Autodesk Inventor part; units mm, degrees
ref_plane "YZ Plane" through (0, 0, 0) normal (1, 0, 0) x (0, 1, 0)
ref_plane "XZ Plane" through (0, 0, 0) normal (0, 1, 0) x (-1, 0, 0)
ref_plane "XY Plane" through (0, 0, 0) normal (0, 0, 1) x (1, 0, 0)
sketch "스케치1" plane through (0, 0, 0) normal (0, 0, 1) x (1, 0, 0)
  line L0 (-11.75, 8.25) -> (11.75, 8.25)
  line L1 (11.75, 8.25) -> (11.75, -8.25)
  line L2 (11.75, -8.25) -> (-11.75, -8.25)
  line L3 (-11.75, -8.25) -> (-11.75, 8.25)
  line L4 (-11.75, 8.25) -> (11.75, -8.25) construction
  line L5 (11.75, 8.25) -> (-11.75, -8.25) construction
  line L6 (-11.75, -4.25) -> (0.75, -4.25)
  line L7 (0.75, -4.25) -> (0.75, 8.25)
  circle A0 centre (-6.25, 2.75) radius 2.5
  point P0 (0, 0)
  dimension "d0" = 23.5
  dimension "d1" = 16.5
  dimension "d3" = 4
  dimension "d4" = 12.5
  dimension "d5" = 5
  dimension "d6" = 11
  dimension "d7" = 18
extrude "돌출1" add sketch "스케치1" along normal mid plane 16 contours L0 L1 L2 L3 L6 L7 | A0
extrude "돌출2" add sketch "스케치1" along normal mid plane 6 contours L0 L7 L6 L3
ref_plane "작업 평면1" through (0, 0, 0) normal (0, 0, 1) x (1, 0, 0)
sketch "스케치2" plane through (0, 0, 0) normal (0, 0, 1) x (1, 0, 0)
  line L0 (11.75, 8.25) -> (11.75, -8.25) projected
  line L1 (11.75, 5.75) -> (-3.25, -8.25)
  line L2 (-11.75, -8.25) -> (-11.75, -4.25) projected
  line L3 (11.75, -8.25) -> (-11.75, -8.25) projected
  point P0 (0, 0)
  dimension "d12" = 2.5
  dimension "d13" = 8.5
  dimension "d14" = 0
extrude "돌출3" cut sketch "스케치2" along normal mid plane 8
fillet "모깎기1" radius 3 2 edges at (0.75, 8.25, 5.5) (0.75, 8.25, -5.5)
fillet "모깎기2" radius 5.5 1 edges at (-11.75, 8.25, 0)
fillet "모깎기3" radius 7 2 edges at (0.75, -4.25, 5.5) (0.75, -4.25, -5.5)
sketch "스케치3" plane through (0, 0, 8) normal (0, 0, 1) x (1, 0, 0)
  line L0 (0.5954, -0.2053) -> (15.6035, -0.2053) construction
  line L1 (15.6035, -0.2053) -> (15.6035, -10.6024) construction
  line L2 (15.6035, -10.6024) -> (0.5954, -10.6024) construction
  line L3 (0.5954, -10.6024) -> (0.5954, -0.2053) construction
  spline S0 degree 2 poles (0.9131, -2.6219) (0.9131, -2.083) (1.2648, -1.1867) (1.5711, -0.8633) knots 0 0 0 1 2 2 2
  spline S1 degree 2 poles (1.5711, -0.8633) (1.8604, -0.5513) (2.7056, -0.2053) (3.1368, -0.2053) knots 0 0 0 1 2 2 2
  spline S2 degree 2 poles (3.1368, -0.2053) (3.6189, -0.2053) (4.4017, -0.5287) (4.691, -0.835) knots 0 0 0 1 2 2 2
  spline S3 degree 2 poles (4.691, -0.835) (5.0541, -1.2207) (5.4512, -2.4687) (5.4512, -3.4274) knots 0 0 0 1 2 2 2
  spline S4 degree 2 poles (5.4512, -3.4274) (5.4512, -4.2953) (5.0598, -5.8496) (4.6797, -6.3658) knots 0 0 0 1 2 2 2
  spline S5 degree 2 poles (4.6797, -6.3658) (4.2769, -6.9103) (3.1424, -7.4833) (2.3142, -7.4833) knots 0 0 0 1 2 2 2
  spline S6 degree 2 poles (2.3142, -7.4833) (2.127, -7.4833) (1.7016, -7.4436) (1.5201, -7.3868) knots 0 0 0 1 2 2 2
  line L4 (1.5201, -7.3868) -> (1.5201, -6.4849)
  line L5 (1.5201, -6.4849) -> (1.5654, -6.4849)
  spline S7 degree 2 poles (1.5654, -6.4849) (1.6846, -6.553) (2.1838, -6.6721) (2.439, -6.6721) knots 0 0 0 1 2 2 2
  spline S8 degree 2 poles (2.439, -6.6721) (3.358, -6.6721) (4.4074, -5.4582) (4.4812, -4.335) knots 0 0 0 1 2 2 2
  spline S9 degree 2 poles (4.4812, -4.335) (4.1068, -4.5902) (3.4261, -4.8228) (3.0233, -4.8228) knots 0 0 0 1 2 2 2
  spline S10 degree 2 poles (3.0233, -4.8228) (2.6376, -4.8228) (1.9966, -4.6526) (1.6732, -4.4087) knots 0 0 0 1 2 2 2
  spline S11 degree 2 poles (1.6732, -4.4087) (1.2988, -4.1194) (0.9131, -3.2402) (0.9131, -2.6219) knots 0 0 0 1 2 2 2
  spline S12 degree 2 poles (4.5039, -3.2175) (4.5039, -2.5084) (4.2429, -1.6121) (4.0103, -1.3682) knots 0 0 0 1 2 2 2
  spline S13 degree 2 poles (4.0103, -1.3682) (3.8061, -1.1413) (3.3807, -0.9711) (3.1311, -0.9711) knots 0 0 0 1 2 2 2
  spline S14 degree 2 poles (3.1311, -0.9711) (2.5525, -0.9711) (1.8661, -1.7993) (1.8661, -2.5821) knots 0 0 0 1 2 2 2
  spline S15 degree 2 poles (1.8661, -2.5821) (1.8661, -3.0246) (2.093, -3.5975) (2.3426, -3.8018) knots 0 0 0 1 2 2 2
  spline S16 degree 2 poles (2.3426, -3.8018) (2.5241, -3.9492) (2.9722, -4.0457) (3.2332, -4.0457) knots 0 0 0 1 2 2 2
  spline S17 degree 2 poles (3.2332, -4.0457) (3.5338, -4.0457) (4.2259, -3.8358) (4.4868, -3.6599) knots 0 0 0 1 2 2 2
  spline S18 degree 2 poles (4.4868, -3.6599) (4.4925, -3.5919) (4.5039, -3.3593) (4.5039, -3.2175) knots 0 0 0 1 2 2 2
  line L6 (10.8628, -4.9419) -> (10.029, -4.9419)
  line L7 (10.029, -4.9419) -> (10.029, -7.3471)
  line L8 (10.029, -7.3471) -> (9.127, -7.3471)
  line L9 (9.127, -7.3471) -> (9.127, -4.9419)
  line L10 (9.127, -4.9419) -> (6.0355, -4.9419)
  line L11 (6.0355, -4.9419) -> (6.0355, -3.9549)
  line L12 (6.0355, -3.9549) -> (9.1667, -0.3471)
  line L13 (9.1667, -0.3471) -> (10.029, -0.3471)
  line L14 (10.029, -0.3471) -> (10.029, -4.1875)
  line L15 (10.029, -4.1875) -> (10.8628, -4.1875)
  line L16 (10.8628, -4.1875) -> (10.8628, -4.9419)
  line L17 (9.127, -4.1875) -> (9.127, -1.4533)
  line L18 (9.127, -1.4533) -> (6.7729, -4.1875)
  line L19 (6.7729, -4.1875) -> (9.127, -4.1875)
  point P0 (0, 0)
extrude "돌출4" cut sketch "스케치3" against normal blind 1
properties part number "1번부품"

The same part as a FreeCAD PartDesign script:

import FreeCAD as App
import Part
import Sketcher

V = App.Vector


def edges_at(feature, points):
    """Names of the edges that pass closest to the given points."""
    edges = feature.Shape.Edges
    near = lambda p: min(range(len(edges)), key=lambda i: edges[i].distToShape(Part.Vertex(*p))[0])
    return sorted({f"Edge{near(p) + 1}" for p in points})

doc = App.newDocument("Part")
body = doc.addObject("PartDesign::Body", "Body")
body.AllowCompound = True

sketch1 = body.newObject("Sketcher::SketchObject", "Sketch")
sketch1.AttachmentSupport = (doc.getObject("XY_Plane"), [""])
sketch1.MapMode = "FlatFace"
sketch1.addGeometry([
    Part.LineSegment(V(11.75, 8.25, 0), V(0.75, 8.25, 0)),
    Part.LineSegment(V(0.75, 8.25, 0), V(0.75, -4.25, 0)),
    Part.LineSegment(V(0.75, -4.25, 0), V(-11.75, -4.25, 0)),
    Part.LineSegment(V(-11.75, -4.25, 0), V(-11.75, -8.25, 0)),
    Part.LineSegment(V(-11.75, -8.25, 0), V(11.75, -8.25, 0)),
    Part.LineSegment(V(11.75, -8.25, 0), V(11.75, 8.25, 0)),
    Part.Circle(V(-6.25, 2.75, 0), V(0, 0, 1), 2.5),
], False)
sketch1.addConstraint([
    Sketcher.Constraint("Coincident", 0, 2, 1, 1),
    Sketcher.Constraint("Coincident", 1, 2, 2, 1),
    Sketcher.Constraint("Coincident", 2, 2, 3, 1),
    Sketcher.Constraint("Coincident", 3, 2, 4, 1),
    Sketcher.Constraint("Coincident", 4, 2, 5, 1),
    Sketcher.Constraint("Coincident", 5, 2, 0, 1),
    Sketcher.Constraint("Horizontal", 0),
    Sketcher.Constraint("Vertical", 1),
    Sketcher.Constraint("Horizontal", 2),
    Sketcher.Constraint("Vertical", 3),
    Sketcher.Constraint("Horizontal", 4),
    Sketcher.Constraint("Vertical", 5),
    Sketcher.Constraint("Symmetric", 3, 2, 5, 2, -1, 1),
    Sketcher.Constraint("Equal", 2, 1),
    Sketcher.Constraint("Diameter", 6, 5.0),
    Sketcher.Constraint("DistanceX", 0, 2, 0, 1, 11.0),
    Sketcher.Constraint("DistanceY", 3, 2, 3, 1, 4.0),
    Sketcher.Constraint("DistanceX", 2, 2, 2, 1, 12.5),
    Sketcher.Constraint("DistanceY", 3, 2, 6, 3, 11.0),
    Sketcher.Constraint("DistanceX", 6, 3, 4, 2, 18.0),
])
pad1 = body.newObject("PartDesign::Pad", "Pad")
pad1.Profile = sketch1
pad1.Length = 16
pad1.Midplane = True

sketch2 = body.newObject("Sketcher::SketchObject", "Sketch001")
sketch2.AttachmentSupport = (doc.getObject("XY_Plane"), [""])
sketch2.MapMode = "FlatFace"
sketch2.addGeometry([
    Part.LineSegment(V(0.75, 8.25, 0), V(-11.75, 8.25, 0)),
    Part.LineSegment(V(-11.75, 8.25, 0), V(-11.75, -4.25, 0)),
    Part.LineSegment(V(-11.75, -4.25, 0), V(0.75, -4.25, 0)),
    Part.LineSegment(V(0.75, -4.25, 0), V(0.75, 8.25, 0)),
    Part.Circle(V(-6.25, 2.75, 0), V(0, 0, 1), 2.5),
], False)
sketch2.addConstraint([
    Sketcher.Constraint("Coincident", 0, 2, 1, 1),
    Sketcher.Constraint("Coincident", 1, 2, 2, 1),
    Sketcher.Constraint("Coincident", 2, 2, 3, 1),
    Sketcher.Constraint("Coincident", 3, 2, 0, 1),
    Sketcher.Constraint("Horizontal", 0),
    Sketcher.Constraint("Vertical", 1),
    Sketcher.Constraint("Horizontal", 2),
    Sketcher.Constraint("Vertical", 3),
    Sketcher.Constraint("Equal", 2, 1),
    Sketcher.Constraint("Diameter", 4, 5.0),
    Sketcher.Constraint("DistanceX", 0, 2, 0, 1, 12.5),
    Sketcher.Constraint("DistanceY", 1, 2, 4, 3, 7.0),
    Sketcher.Constraint("DistanceX", 4, 3, 2, 2, 7.0),
    Sketcher.Constraint("DistanceX", 4, 3, -1, 1, 6.25),
    Sketcher.Constraint("DistanceY", -1, 1, 4, 3, 2.75),
])
pad2 = body.newObject("PartDesign::Pad", "Pad001")
pad2.Profile = sketch2
pad2.Length = 6
pad2.Midplane = True

sketch3 = body.newObject("Sketcher::SketchObject", "Sketch002")
sketch3.AttachmentSupport = (doc.getObject("XY_Plane"), [""])
sketch3.MapMode = "FlatFace"
sketch3.addGeometry([
    Part.LineSegment(V(11.75, -8.25, 0), V(11.75, 5.75, 0)),
    Part.LineSegment(V(11.75, 5.75, 0), V(-3.25, -8.25, 0)),
    Part.LineSegment(V(-3.25, -8.25, 0), V(11.75, -8.25, 0)),
], False)
sketch3.addConstraint([
    Sketcher.Constraint("Coincident", 0, 2, 1, 1),
    Sketcher.Constraint("Coincident", 1, 2, 2, 1),
    Sketcher.Constraint("Coincident", 2, 2, 0, 1),
    Sketcher.Constraint("Vertical", 0),
    Sketcher.Constraint("Horizontal", 2),
    Sketcher.Constraint("DistanceX", 2, 1, 2, 2, 15.0),
    Sketcher.Constraint("DistanceY", 0, 1, 0, 2, 14.0),
    Sketcher.Constraint("DistanceX", -1, 1, 0, 2, 11.75),
    Sketcher.Constraint("DistanceY", -1, 1, 0, 2, 5.75),
])
pocket1 = body.newObject("PartDesign::Pocket", "Pocket")
pocket1.Profile = sketch3
pocket1.Length = 8
pocket1.Midplane = True
doc.recompute()

fillet = body.newObject("PartDesign::Fillet", "Fillet")
fillet.Base = (pocket1, edges_at(pocket1, [(0.75, 8.25, 5.5), (0.75, 8.25, -5.5)]))
fillet.Radius = 3
doc.recompute()

fillet2 = body.newObject("PartDesign::Fillet", "Fillet001")
fillet2.Base = (fillet, edges_at(fillet, [(-11.75, 8.25, 0)]))
fillet2.Radius = 5.5
doc.recompute()

fillet3 = body.newObject("PartDesign::Fillet", "Fillet002")
fillet3.Base = (fillet2, edges_at(fillet2, [(0.75, -4.25, 5.5), (0.75, -4.25, -5.5)]))
fillet3.Radius = 7

sketch4 = body.newObject("Sketcher::SketchObject", "Sketch003")
sketch4.AttachmentSupport = (doc.getObject("XY_Plane"), [""])
sketch4.MapMode = "FlatFace"
sketch4.AttachmentOffset = App.Placement(V(0, 0, 8), App.Rotation())
sketch4.addGeometry([
    Part.BSplineCurve([V(0.9131, -2.6219, 0), V(0.9131, -2.083, 0), V(1.2648, -1.1867, 0), V(1.5711, -0.8633, 0)], [3, 1, 3], [0, 1, 2], False, 2, [1, 1, 1, 1], False),
    Part.BSplineCurve([V(1.6732, -4.4087, 0), V(1.2988, -4.1194, 0), V(0.9131, -3.2402, 0), V(0.9131, -2.6219, 0)], [3, 1, 3], [0, 1, 2], False, 2, [1, 1, 1, 1], False),
    Part.BSplineCurve([V(3.0233, -4.8228, 0), V(2.6376, -4.8228, 0), V(1.9966, -4.6526, 0), V(1.6732, -4.4087, 0)], [3, 1, 3], [0, 1, 2], False, 2, [1, 1, 1, 1], False),
    Part.BSplineCurve([V(4.4812, -4.335, 0), V(4.1068, -4.5902, 0), V(3.4261, -4.8228, 0), V(3.0233, -4.8228, 0)], [3, 1, 3], [0, 1, 2], False, 2, [1, 1, 1, 1], False),
    Part.BSplineCurve([V(2.439, -6.6721, 0), V(3.358, -6.6721, 0), V(4.4074, -5.4582, 0), V(4.4812, -4.335, 0)], [3, 1, 3], [0, 1, 2], False, 2, [1, 1, 1, 1], False),
    Part.BSplineCurve([V(1.5654, -6.4849, 0), V(1.6846, -6.553, 0), V(2.1838, -6.6721, 0), V(2.439, -6.6721, 0)], [3, 1, 3], [0, 1, 2], False, 2, [1, 1, 1, 1], False),
    Part.LineSegment(V(1.5654, -6.4849, 0), V(1.5201, -6.4849, 0)),
    Part.LineSegment(V(1.5201, -6.4849, 0), V(1.5201, -7.3868, 0)),
    Part.BSplineCurve([V(2.3142, -7.4833, 0), V(2.127, -7.4833, 0), V(1.7016, -7.4436, 0), V(1.5201, -7.3868, 0)], [3, 1, 3], [0, 1, 2], False, 2, [1, 1, 1, 1], False),
    Part.BSplineCurve([V(4.6797, -6.3658, 0), V(4.2769, -6.9103, 0), V(3.1424, -7.4833, 0), V(2.3142, -7.4833, 0)], [3, 1, 3], [0, 1, 2], False, 2, [1, 1, 1, 1], False),
    Part.BSplineCurve([V(5.4512, -3.4274, 0), V(5.4512, -4.2953, 0), V(5.0598, -5.8496, 0), V(4.6797, -6.3658, 0)], [3, 1, 3], [0, 1, 2], False, 2, [1, 1, 1, 1], False),
    Part.BSplineCurve([V(4.691, -0.835, 0), V(5.0541, -1.2207, 0), V(5.4512, -2.4687, 0), V(5.4512, -3.4274, 0)], [3, 1, 3], [0, 1, 2], False, 2, [1, 1, 1, 1], False),
    Part.BSplineCurve([V(3.1368, -0.2053, 0), V(3.6189, -0.2053, 0), V(4.4017, -0.5287, 0), V(4.691, -0.835, 0)], [3, 1, 3], [0, 1, 2], False, 2, [1, 1, 1, 1], False),
    Part.BSplineCurve([V(1.5711, -0.8633, 0), V(1.8604, -0.5513, 0), V(2.7056, -0.2053, 0), V(3.1368, -0.2053, 0)], [3, 1, 3], [0, 1, 2], False, 2, [1, 1, 1, 1], False),
    Part.BSplineCurve([V(4.5039, -3.2175, 0), V(4.5039, -2.5084, 0), V(4.2429, -1.6121, 0), V(4.0103, -1.3682, 0)], [3, 1, 3], [0, 1, 2], False, 2, [1, 1, 1, 1], False),
    Part.BSplineCurve([V(4.4868, -3.6599, 0), V(4.4925, -3.5919, 0), V(4.5039, -3.3593, 0), V(4.5039, -3.2175, 0)], [3, 1, 3], [0, 1, 2], False, 2, [1, 1, 1, 1], False),
    Part.BSplineCurve([V(3.2332, -4.0457, 0), V(3.5338, -4.0457, 0), V(4.2259, -3.8358, 0), V(4.4868, -3.6599, 0)], [3, 1, 3], [0, 1, 2], False, 2, [1, 1, 1, 1], False),
    Part.BSplineCurve([V(2.3426, -3.8018, 0), V(2.5241, -3.9492, 0), V(2.9722, -4.0457, 0), V(3.2332, -4.0457, 0)], [3, 1, 3], [0, 1, 2], False, 2, [1, 1, 1, 1], False),
    Part.BSplineCurve([V(1.8661, -2.5821, 0), V(1.8661, -3.0246, 0), V(2.093, -3.5975, 0), V(2.3426, -3.8018, 0)], [3, 1, 3], [0, 1, 2], False, 2, [1, 1, 1, 1], False),
    Part.BSplineCurve([V(3.1311, -0.9711, 0), V(2.5525, -0.9711, 0), V(1.8661, -1.7993, 0), V(1.8661, -2.5821, 0)], [3, 1, 3], [0, 1, 2], False, 2, [1, 1, 1, 1], False),
    Part.BSplineCurve([V(4.0103, -1.3682, 0), V(3.8061, -1.1413, 0), V(3.3807, -0.9711, 0), V(3.1311, -0.9711, 0)], [3, 1, 3], [0, 1, 2], False, 2, [1, 1, 1, 1], False),
    Part.LineSegment(V(10.029, -4.9419, 0), V(10.8628, -4.9419, 0)),
    Part.LineSegment(V(10.8628, -4.9419, 0), V(10.8628, -4.1875, 0)),
    Part.LineSegment(V(10.8628, -4.1875, 0), V(10.029, -4.1875, 0)),
    Part.LineSegment(V(10.029, -4.1875, 0), V(10.029, -0.3471, 0)),
    Part.LineSegment(V(10.029, -0.3471, 0), V(9.1667, -0.3471, 0)),
    Part.LineSegment(V(9.1667, -0.3471, 0), V(6.0355, -3.9549, 0)),
    Part.LineSegment(V(6.0355, -3.9549, 0), V(6.0355, -4.9419, 0)),
    Part.LineSegment(V(6.0355, -4.9419, 0), V(9.127, -4.9419, 0)),
    Part.LineSegment(V(9.127, -4.9419, 0), V(9.127, -7.3471, 0)),
    Part.LineSegment(V(9.127, -7.3471, 0), V(10.029, -7.3471, 0)),
    Part.LineSegment(V(10.029, -7.3471, 0), V(10.029, -4.9419, 0)),
    Part.LineSegment(V(9.127, -1.4533, 0), V(9.127, -4.1875, 0)),
    Part.LineSegment(V(9.127, -4.1875, 0), V(6.7729, -4.1875, 0)),
    Part.LineSegment(V(6.7729, -4.1875, 0), V(9.127, -1.4533, 0)),
], False)
sketch4.addConstraint([
    Sketcher.Constraint("Block", 0),
    Sketcher.Constraint("Block", 1),
    Sketcher.Constraint("Block", 2),
    Sketcher.Constraint("Block", 3),
    Sketcher.Constraint("Block", 4),
    Sketcher.Constraint("Block", 5),
    Sketcher.Constraint("Block", 8),
    Sketcher.Constraint("Block", 9),
    Sketcher.Constraint("Block", 10),
    Sketcher.Constraint("Block", 11),
    Sketcher.Constraint("Block", 12),
    Sketcher.Constraint("Block", 13),
    Sketcher.Constraint("Block", 14),
    Sketcher.Constraint("Block", 15),
    Sketcher.Constraint("Block", 16),
    Sketcher.Constraint("Block", 17),
    Sketcher.Constraint("Block", 18),
    Sketcher.Constraint("Block", 19),
    Sketcher.Constraint("Block", 20),
    Sketcher.Constraint("Coincident", 5, 1, 6, 1),
    Sketcher.Constraint("Coincident", 6, 2, 7, 1),
    Sketcher.Constraint("Coincident", 7, 2, 8, 2),
    Sketcher.Constraint("Coincident", 21, 2, 22, 1),
    Sketcher.Constraint("Coincident", 22, 2, 23, 1),
    Sketcher.Constraint("Coincident", 23, 2, 24, 1),
    Sketcher.Constraint("Coincident", 24, 2, 25, 1),
    Sketcher.Constraint("Coincident", 25, 2, 26, 1),
    Sketcher.Constraint("Coincident", 26, 2, 27, 1),
    Sketcher.Constraint("Coincident", 27, 2, 28, 1),
    Sketcher.Constraint("Coincident", 28, 2, 29, 1),
    Sketcher.Constraint("Coincident", 29, 2, 30, 1),
    Sketcher.Constraint("Coincident", 30, 2, 31, 1),
    Sketcher.Constraint("Coincident", 31, 2, 21, 1),
    Sketcher.Constraint("Coincident", 32, 2, 33, 1),
    Sketcher.Constraint("Coincident", 33, 2, 34, 1),
    Sketcher.Constraint("Coincident", 34, 2, 32, 1),
    Sketcher.Constraint("Horizontal", 6),
    Sketcher.Constraint("Vertical", 7),
    Sketcher.Constraint("Horizontal", 21),
    Sketcher.Constraint("Vertical", 22),
    Sketcher.Constraint("Horizontal", 23),
    Sketcher.Constraint("Vertical", 24),
    Sketcher.Constraint("Horizontal", 25),
    Sketcher.Constraint("Vertical", 27),
    Sketcher.Constraint("Horizontal", 28),
    Sketcher.Constraint("Vertical", 29),
    Sketcher.Constraint("Horizontal", 30),
    Sketcher.Constraint("Vertical", 31),
    Sketcher.Constraint("Vertical", 32),
    Sketcher.Constraint("Horizontal", 33),
    Sketcher.Constraint("Horizontal", 21, 2, 27, 2),
    Sketcher.Constraint("Horizontal", 23, 2, 32, 2),
    Sketcher.Constraint("Vertical", 24, 2, 30, 2),
    Sketcher.Constraint("Vertical", 29, 2, 32, 2),
    Sketcher.Constraint("Equal", 30, 7),
    Sketcher.Constraint("DistanceX", 33, 2, 33, 1, 2.354),
    Sketcher.Constraint("DistanceY", 27, 2, 27, 1, 0.987),
    Sketcher.Constraint("DistanceY", 6, 2, 26, 2, 2.53),
    Sketcher.Constraint("Distance", 26, 4.777),
    Sketcher.Constraint("Distance", 34, 3.608),
    Sketcher.Constraint("DistanceX", 21, 1, 21, 2, 0.8338),
    Sketcher.Constraint("DistanceX", 25, 2, 25, 1, 0.8623),
    Sketcher.Constraint("DistanceX", 28, 1, 28, 2, 3.0915),
    Sketcher.Constraint("DistanceY", 22, 1, 22, 2, 0.7544),
    Sketcher.Constraint("DistanceY", 29, 2, 29, 1, 2.4052),
    Sketcher.Constraint("DistanceX", -1, 1, 23, 2, 10.029),
])
pocket2 = body.newObject("PartDesign::Pocket", "Pocket001")
pocket2.Profile = sketch4
pocket2.Length = 1

doc.recompute()
